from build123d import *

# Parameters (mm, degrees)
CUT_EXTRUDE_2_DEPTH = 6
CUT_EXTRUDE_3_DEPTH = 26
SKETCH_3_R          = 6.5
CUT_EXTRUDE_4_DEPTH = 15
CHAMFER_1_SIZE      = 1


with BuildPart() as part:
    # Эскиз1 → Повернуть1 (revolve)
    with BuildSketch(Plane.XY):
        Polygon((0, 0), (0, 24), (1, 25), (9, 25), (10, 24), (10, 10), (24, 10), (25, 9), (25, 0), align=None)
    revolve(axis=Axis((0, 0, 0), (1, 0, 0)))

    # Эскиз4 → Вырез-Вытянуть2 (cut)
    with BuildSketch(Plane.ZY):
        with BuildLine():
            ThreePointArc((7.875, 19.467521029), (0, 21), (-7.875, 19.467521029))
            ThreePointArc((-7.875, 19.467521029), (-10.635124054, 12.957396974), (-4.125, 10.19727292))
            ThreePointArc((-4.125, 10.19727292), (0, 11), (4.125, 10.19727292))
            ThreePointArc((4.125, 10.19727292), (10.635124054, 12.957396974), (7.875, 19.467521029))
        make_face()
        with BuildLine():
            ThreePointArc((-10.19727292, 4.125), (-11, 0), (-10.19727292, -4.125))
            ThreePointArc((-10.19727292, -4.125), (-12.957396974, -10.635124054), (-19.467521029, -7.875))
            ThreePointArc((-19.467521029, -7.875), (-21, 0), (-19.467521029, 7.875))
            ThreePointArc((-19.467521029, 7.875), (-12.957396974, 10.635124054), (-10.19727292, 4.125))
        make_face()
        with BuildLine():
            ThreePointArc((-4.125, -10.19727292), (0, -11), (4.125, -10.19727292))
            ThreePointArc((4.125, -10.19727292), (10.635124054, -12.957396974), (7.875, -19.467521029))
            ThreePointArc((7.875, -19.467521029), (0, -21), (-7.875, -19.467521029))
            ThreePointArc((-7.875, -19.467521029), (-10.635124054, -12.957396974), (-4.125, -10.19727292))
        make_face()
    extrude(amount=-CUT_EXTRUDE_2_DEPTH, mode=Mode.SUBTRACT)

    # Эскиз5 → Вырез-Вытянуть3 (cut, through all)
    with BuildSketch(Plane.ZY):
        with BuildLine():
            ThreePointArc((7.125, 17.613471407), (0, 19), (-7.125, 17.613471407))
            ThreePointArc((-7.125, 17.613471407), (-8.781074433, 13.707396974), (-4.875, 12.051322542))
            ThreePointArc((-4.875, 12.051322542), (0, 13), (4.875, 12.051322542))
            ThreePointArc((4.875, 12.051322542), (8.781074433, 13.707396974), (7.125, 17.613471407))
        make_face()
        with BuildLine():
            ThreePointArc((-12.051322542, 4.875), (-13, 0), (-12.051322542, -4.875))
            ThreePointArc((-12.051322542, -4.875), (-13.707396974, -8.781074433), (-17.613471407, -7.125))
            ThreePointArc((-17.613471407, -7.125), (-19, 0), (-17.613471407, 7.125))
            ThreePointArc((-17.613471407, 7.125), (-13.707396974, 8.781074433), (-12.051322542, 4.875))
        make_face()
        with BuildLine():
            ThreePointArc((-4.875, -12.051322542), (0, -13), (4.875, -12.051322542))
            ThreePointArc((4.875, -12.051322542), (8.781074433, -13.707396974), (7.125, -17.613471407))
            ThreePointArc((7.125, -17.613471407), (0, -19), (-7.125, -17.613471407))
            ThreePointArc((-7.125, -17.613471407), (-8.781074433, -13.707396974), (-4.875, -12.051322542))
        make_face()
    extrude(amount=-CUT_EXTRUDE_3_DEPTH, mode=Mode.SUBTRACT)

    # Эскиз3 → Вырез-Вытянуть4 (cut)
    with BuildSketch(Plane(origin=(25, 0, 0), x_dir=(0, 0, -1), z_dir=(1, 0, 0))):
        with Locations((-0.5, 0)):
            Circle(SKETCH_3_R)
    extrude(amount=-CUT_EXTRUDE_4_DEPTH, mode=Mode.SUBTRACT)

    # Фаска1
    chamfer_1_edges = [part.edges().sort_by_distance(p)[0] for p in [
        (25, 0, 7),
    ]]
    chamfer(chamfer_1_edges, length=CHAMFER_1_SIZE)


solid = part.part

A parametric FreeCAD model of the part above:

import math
import FreeCAD as App
import Part
import Sketcher
from FreeCAD import Vector


def edges_at(feature, points):
    """Names of the edges that pass closest to the given points."""
    edges = feature.Shape.Edges
    near = lambda p: min(range(len(edges)), key=lambda i: edges[i].distToShape(Part.Vertex(*p))[0])
    return sorted({f"Edge{near(p) + 1}" for p in points})

doc = App.newDocument("Part")
body = doc.addObject("PartDesign::Body", "Body")

sketch1 = body.newObject("Sketcher::SketchObject", "Sketch")
sketch1.AttachmentSupport = (doc.getObject("XY_Plane"), [""])
sketch1.MapMode = "FlatFace"
sketch1.addGeometry([
    Part.LineSegment(Vector(0, 24, 0), Vector(0, 0, 0)),
    Part.LineSegment(Vector(0, 0, 0), Vector(25, 0, 0)),
    Part.LineSegment(Vector(25, 0, 0), Vector(25, 9, 0)),
    Part.LineSegment(Vector(25, 9, 0), Vector(24, 10, 0)),
    Part.LineSegment(Vector(24, 10, 0), Vector(10, 10, 0)),
    Part.LineSegment(Vector(10, 10, 0), Vector(10, 24, 0)),
    Part.LineSegment(Vector(10, 24, 0), Vector(9, 25, 0)),
    Part.LineSegment(Vector(9, 25, 0), Vector(1, 25, 0)),
    Part.LineSegment(Vector(1, 25, 0), Vector(0, 24, 0)),
], False)
sketch1.addConstraint([
    Sketcher.Constraint("Coincident", 0, 2, 1, 1),
    Sketcher.Constraint("Coincident", 1, 2, 2, 1),
    Sketcher.Constraint("Coincident", 2, 2, 3, 1),
    Sketcher.Constraint("Coincident", 3, 2, 4, 1),
    Sketcher.Constraint("Coincident", 4, 2, 5, 1),
    Sketcher.Constraint("Coincident", 5, 2, 6, 1),
    Sketcher.Constraint("Coincident", 6, 2, 7, 1),
    Sketcher.Constraint("Coincident", 7, 2, 8, 1),
    Sketcher.Constraint("Coincident", 8, 2, 0, 1),
    Sketcher.Constraint("Vertical", 0),
    Sketcher.Constraint("Horizontal", 1),
    Sketcher.Constraint("Vertical", 2),
    Sketcher.Constraint("Horizontal", 4),
    Sketcher.Constraint("Vertical", 5),
    Sketcher.Constraint("Horizontal", 7),
    Sketcher.Constraint("Coincident", 0, 2, -1, 1),
    Sketcher.Constraint("Parallel", 3, 6),
    Sketcher.Constraint("Perpendicular", 6, 8),
    Sketcher.Constraint("Horizontal", 5, 2, 8, 2),
    Sketcher.Constraint("Equal", 4, 5),
    Sketcher.Constraint("Equal", 3, 6),
    Sketcher.Constraint("Equal", 6, 8),
    Sketcher.Constraint("DistanceX", 1, 1, 1, 2, 25.0),
    Sketcher.Constraint("DistanceX", 4, 2, 4, 1, 14.0),
    Sketcher.Constraint("DistanceX", 7, 2, 7, 1, 8.0),
    Sketcher.Constraint("DistanceY", 0, 2, 0, 1, 24.0),
])
revolution = body.newObject("PartDesign::Revolution", "Revolution")
revolution.Profile = sketch1
revolution.ReferenceAxis = (sketch1, ["H_Axis"])
revolution.Angle = 360

sketch2 = body.newObject("Sketcher::SketchObject", "Sketch001")
sketch2.AttachmentSupport = (doc.getObject("YZ_Plane"), [""])
sketch2.MapMode = "FlatFace"
sketch2.addGeometry([
    Part.ArcOfCircle(Part.Circle(Vector(0, 0, 0), Vector(0, 0, 1), 21), math.radians(-22), math.radians(22)),
    Part.ArcOfCircle(Part.Circle(Vector(15, -6, 0), Vector(0, 0, 1), 5), math.radians(158), math.radians(338)),
    Part.ArcOfCircle(Part.Circle(Vector(0, 0, 0), Vector(0, 0, 1), 11), math.radians(-22), math.radians(22)),
    Part.ArcOfCircle(Part.Circle(Vector(15, 6, 0), Vector(0, 0, 1), 5), math.radians(22), math.radians(202)),
    Part.ArcOfCircle(Part.Circle(Vector(0, 0, 0), Vector(0, 0, 1), 11), math.radians(-112), math.radians(-68)),
    Part.ArcOfCircle(Part.Circle(Vector(6, -15, 0), Vector(0, 0, 1), 5), math.radians(-68), math.radians(112)),
    Part.ArcOfCircle(Part.Circle(Vector(0, 0, 0), Vector(0, 0, 1), 21), math.radians(-112), math.radians(-68)),
    Part.ArcOfCircle(Part.Circle(Vector(-6, -15, 0), Vector(0, 0, 1), 5), math.radians(68), math.radians(248)),
    Part.ArcOfCircle(Part.Circle(Vector(0, 0, 0), Vector(0, 0, 1), 11), math.radians(158), math.radians(202)),
    Part.ArcOfCircle(Part.Circle(Vector(-15, -6, 0), Vector(0, 0, 1), 5), math.radians(-158), math.radians(22)),
    Part.ArcOfCircle(Part.Circle(Vector(0, 0, 0), Vector(0, 0, 1), 21), math.radians(158), math.radians(202)),
    Part.ArcOfCircle(Part.Circle(Vector(-15, 6, 0), Vector(0, 0, 1), 5), math.radians(-22), math.radians(158)),
], False)
sketch2.addConstraint([
    Sketcher.Constraint("Tangent", 0, 1, 1, 2),
    Sketcher.Constraint("Tangent", 1, 1, 2, 1),
    Sketcher.Constraint("Tangent", 2, 2, 3, 2),
    Sketcher.Constraint("Tangent", 3, 1, 0, 2),
    Sketcher.Constraint("Tangent", 4, 2, 5, 2),
    Sketcher.Constraint("Tangent", 5, 1, 6, 2),
    Sketcher.Constraint("Tangent", 6, 1, 7, 2),
    Sketcher.Constraint("Tangent", 7, 1, 4, 1),
    Sketcher.Constraint("Tangent", 8, 2, 9, 2),
    Sketcher.Constraint("Tangent", 9, 1, 10, 2),
    Sketcher.Constraint("Tangent", 10, 1, 11, 2),
    Sketcher.Constraint("Tangent", 11, 1, 8, 1),
    Sketcher.Constraint("Coincident", 0, 3, -1, 1),
    Sketcher.Constraint("Coincident", 2, 3, -1, 1),
    Sketcher.Constraint("Coincident", 4, 3, -1, 1),
    Sketcher.Constraint("Coincident", 6, 3, -1, 1),
    Sketcher.Constraint("Coincident", 8, 3, -1, 1),
    Sketcher.Constraint("Coincident", 10, 3, -1, 1),
    Sketcher.Constraint("Equal", 2, 4),
    Sketcher.Constraint("Equal", 3, 5),
    Sketcher.Constraint("Equal", 4, 8),
    Sketcher.Constraint("Equal", 7, 9),
    Sketcher.Constraint("Horizontal", 5, 3, 7, 3),
    Sketcher.Constraint("Horizontal", 1, 3, 9, 3),
    Sketcher.Constraint("Horizontal", 3, 3, 11, 3),
    Sketcher.Constraint("Vertical", 1, 3, 3, 3),
    Sketcher.Constraint("Radius", 0, 21.0),
    Sketcher.Constraint("Radius", 1, 5.0),
    Sketcher.Constraint("DistanceY", 1, 3, -1, 1, 6.0),
    Sketcher.Constraint("DistanceX", -1, 1, 5, 3, 6.0),
])
pocket1 = body.newObject("PartDesign::Pocket", "Pocket")
pocket1.Profile = sketch2
pocket1.Length = 6
pocket1.Reversed = True

sketch3 = body.newObject("Sketcher::SketchObject", "Sketch002")
sketch3.AttachmentSupport = (doc.getObject("YZ_Plane"), [""])
sketch3.MapMode = "FlatFace"
sketch3.addGeometry([
    Part.ArcOfCircle(Part.Circle(Vector(0, 0, 0), Vector(0, 0, 1), 19), math.radians(-22), math.radians(22)),
    Part.ArcOfCircle(Part.Circle(Vector(14.8, -6, 0), Vector(0, 0, 1), 3), math.radians(158), math.radians(338)),
    Part.ArcOfCircle(Part.Circle(Vector(0, 0, 0), Vector(0, 0, 1), 13), math.radians(-22), math.radians(22)),
    Part.ArcOfCircle(Part.Circle(Vector(14.8, 6, 0), Vector(0, 0, 1), 3), math.radians(22), math.radians(202)),
    Part.ArcOfCircle(Part.Circle(Vector(0, 0, 0), Vector(0, 0, 1), 13), math.radians(-112), math.radians(-68)),
    Part.ArcOfCircle(Part.Circle(Vector(6, -14.8, 0), Vector(0, 0, 1), 3), math.radians(-68), math.radians(112)),
    Part.ArcOfCircle(Part.Circle(Vector(0, 0, 0), Vector(0, 0, 1), 19), math.radians(-112), math.radians(-68)),
    Part.ArcOfCircle(Part.Circle(Vector(-6, -14.8, 0), Vector(0, 0, 1), 3), math.radians(68), math.radians(248)),
    Part.ArcOfCircle(Part.Circle(Vector(0, 0, 0), Vector(0, 0, 1), 13), math.radians(158), math.radians(202)),
    Part.ArcOfCircle(Part.Circle(Vector(-14.8, -6, 0), Vector(0, 0, 1), 3), math.radians(-158), math.radians(22)),
    Part.ArcOfCircle(Part.Circle(Vector(0, 0, 0), Vector(0, 0, 1), 19), math.radians(158), math.radians(202)),
    Part.ArcOfCircle(Part.Circle(Vector(-14.8, 6, 0), Vector(0, 0, 1), 3), math.radians(-22), math.radians(158)),
], False)
sketch3.addConstraint([
    Sketcher.Constraint("Tangent", 0, 1, 1, 2),
    Sketcher.Constraint("Tangent", 1, 1, 2, 1),
    Sketcher.Constraint("Tangent", 2, 2, 3, 2),
    Sketcher.Constraint("Tangent", 3, 1, 0, 2),
    Sketcher.Constraint("Tangent", 4, 2, 5, 2),
    Sketcher.Constraint("Tangent", 5, 1, 6, 2),
    Sketcher.Constraint("Tangent", 6, 1, 7, 2),
    Sketcher.Constraint("Tangent", 7, 1, 4, 1),
    Sketcher.Constraint("Tangent", 8, 2, 9, 2),
    Sketcher.Constraint("Tangent", 9, 1, 10, 2),
    Sketcher.Constraint("Tangent", 10, 1, 11, 2),
    Sketcher.Constraint("Tangent", 11, 1, 8, 1),
    Sketcher.Constraint("Coincident", 0, 3, -1, 1),
    Sketcher.Constraint("Coincident", 2, 3, -1, 1),
    Sketcher.Constraint("Coincident", 4, 3, -1, 1),
    Sketcher.Constraint("Coincident", 6, 3, -1, 1),
    Sketcher.Constraint("Coincident", 8, 3, -1, 1),
    Sketcher.Constraint("Coincident", 10, 3, -1, 1),
    Sketcher.Constraint("Equal", 2, 4),
    Sketcher.Constraint("Equal", 3, 5),
    Sketcher.Constraint("Equal", 4, 8),
    Sketcher.Constraint("Equal", 7, 9),
    Sketcher.Constraint("Horizontal", 5, 3, 7, 3),
    Sketcher.Constraint("Horizontal", 1, 3, 9, 3),
    Sketcher.Constraint("Horizontal", 3, 3, 11, 3),
    Sketcher.Constraint("Vertical", 1, 3, 3, 3),
    Sketcher.Constraint("Radius", 0, 19.0),
    Sketcher.Constraint("Radius", 1, 3.0),
    Sketcher.Constraint("DistanceY", 1, 3, -1, 1, 6.0),
    Sketcher.Constraint("DistanceX", -1, 1, 5, 3, 6.0),
])
pocket2 = body.newObject("PartDesign::Pocket", "Pocket001")
pocket2.Profile = sketch3
pocket2.Type = "ThroughAll"
pocket2.Reversed = True

sketch4 = body.newObject("Sketcher::SketchObject", "Sketch003")
sketch4.AttachmentSupport = (doc.getObject("YZ_Plane"), [""])
sketch4.MapMode = "FlatFace"
sketch4.AttachmentOffset = App.Placement(Vector(0, 0, 25), App.Rotation())
sketch4.addGeometry(Part.Circle(Vector(0, 0, 0), Vector(0, 0, 1), 6), False)
sketch4.addConstraint([
    Sketcher.Constraint("PointOnObject", 0, 3, -2),
    Sketcher.Constraint("Diameter", 0, 13.0),
    Sketcher.Constraint("DistanceY", -1, 1, 0, 3, 0.5),
])
pocket3 = body.newObject("PartDesign::Pocket", "Pocket002")
pocket3.Profile = sketch4
pocket3.Length = 15
doc.recompute()

chamfer = body.newObject("PartDesign::Chamfer", "Chamfer")
chamfer.Base = (pocket3, edges_at(pocket3, [(25, 0, 7)]))
chamfer.Size = 1

doc.recompute()
